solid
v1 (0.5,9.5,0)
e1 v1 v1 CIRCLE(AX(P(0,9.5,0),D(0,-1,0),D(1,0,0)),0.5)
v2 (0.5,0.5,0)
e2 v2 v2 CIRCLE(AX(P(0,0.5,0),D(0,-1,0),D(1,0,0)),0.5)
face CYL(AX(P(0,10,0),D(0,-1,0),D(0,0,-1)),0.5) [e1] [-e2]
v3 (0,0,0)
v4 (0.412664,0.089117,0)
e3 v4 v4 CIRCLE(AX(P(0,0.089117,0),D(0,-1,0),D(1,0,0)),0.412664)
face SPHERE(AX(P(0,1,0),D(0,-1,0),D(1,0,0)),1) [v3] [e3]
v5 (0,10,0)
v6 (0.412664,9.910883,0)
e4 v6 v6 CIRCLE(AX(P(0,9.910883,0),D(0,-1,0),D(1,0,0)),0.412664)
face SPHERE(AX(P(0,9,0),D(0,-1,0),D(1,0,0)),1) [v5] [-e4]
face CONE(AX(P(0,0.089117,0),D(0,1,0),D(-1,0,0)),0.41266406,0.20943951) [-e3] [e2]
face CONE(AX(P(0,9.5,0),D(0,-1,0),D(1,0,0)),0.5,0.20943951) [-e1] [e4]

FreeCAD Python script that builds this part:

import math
import FreeCAD as App
import Part
import Sketcher
from FreeCAD import Vector
Q = App.Units.Quantity

doc = App.newDocument("Part")
body = doc.addObject("PartDesign::Body", "Body")

# Sketch on XZ plane
sketch1 = doc.addObject("Sketcher::SketchObject", "Sketch")
body.addObject(sketch1)
sketch1.AttachmentSupport = (doc.XZ_Plane, [""])
sketch1.MapMode = "FlatFace"
sketch1.addGeometry(Part.Circle(Vector(0, 0, 0), Vector(0, 0, 1), 0.5), False)
sketch1.addConstraint(Sketcher.Constraint("Coincident", 0, 3, -1, 1))
sketch1.addConstraint(Sketcher.Constraint("Diameter", 0, Q("1 mm")))
pad1 = doc.addObject("PartDesign::Pad", "Pad")
body.addObject(pad1)
pad1.Profile = sketch1
pad1.Length = 10
pad1.Reversed = True

# Sketch on XY plane
sketch2 = doc.addObject("Sketcher::SketchObject", "Sketch001")
body.addObject(sketch2)
sketch2.AttachmentSupport = (doc.XY_Plane, [""])
sketch2.MapMode = "FlatFace"
sketch2.addGeometry(Part.LineSegment(Vector(0.5, 9.866025, 0), Vector(0.5, 10.1, 0)), False)
sketch2.addGeometry(Part.LineSegment(Vector(0.5, 10.1, 0), Vector(0, 10.1, 0)), False)
sketch2.addGeometry(Part.LineSegment(Vector(0, 10.1, 0), Vector(0, 10, 0)), False)
sketch2.addGeometry(Part.ArcOfCircle(Part.Circle(Vector(0, 9, 0), Vector(0, 0, 1), 1), math.radians(60), math.radians(90)), False)
sketch2.addGeometry(Part.LineSegment(Vector(0, -0.1, 0), Vector(0.5, -0.1, 0)), False)
sketch2.addGeometry(Part.LineSegment(Vector(0.5, -0.1, 0), Vector(0.5, 0.133975, 0)), False)
sketch2.addGeometry(Part.ArcOfCircle(Part.Circle(Vector(0, 1, 0), Vector(0, 0, 1), 1), math.radians(-90), math.radians(-60)), False)
sketch2.addGeometry(Part.LineSegment(Vector(0, 0, 0), Vector(0, -0.1, 0)), False)
sketch2.addConstraint(Sketcher.Constraint("Coincident", 0, 2, 1, 1))
sketch2.addConstraint(Sketcher.Constraint("Coincident", 1, 2, 2, 1))
sketch2.addConstraint(Sketcher.Constraint("Coincident", 2, 2, 3, 2))
sketch2.addConstraint(Sketcher.Constraint("Coincident", 3, 1, 0, 1))
sketch2.addConstraint(Sketcher.Constraint("Coincident", 4, 2, 5, 1))
sketch2.addConstraint(Sketcher.Constraint("Coincident", 5, 2, 6, 2))
sketch2.addConstraint(Sketcher.Constraint("Coincident", 6, 1, 7, 1))
sketch2.addConstraint(Sketcher.Constraint("Coincident", 7, 2, 4, 1))
sketch2.addConstraint(Sketcher.Constraint("Vertical", 0))
sketch2.addConstraint(Sketcher.Constraint("Horizontal", 1))
sketch2.addConstraint(Sketcher.Constraint("Vertical", 2))
sketch2.addConstraint(Sketcher.Constraint("Horizontal", 4))
sketch2.addConstraint(Sketcher.Constraint("Vertical", 5))
sketch2.addConstraint(Sketcher.Constraint("Vertical", 7))
sketch2.addConstraint(Sketcher.Constraint("Coincident", 6, 1, -1, 1))
sketch2.addConstraint(Sketcher.Constraint("Equal", 3, 6))
sketch2.addConstraint(Sketcher.Constraint("PointOnObject", 3, 3, -2))
sketch2.addConstraint(Sketcher.Constraint("PointOnObject", 6, 3, -2))
sketch2.addConstraint(Sketcher.Constraint("PointOnObject", 1, 2, -2))
sketch2.addConstraint(Sketcher.Constraint("Vertical", 3, 1, 4, 2))
sketch2.addConstraint(Sketcher.Constraint("Equal", 0, 5))
sketch2.addConstraint(Sketcher.Constraint("Radius", 3, Q("1 mm")))
sketch2.addConstraint(Sketcher.Constraint("DistanceX", 1, 2, 1, 1, Q("0.5 mm")))
sketch2.addConstraint(Sketcher.Constraint("DistanceY", 2, 2, 2, 1, Q("0.1 mm")))
sketch2.addConstraint(Sketcher.Constraint("DistanceY", -1, 1, 3, 3, Q("9 mm")))
groove = doc.addObject("PartDesign::Groove", "Groove")
body.addObject(groove)
groove.Profile = sketch2
groove.ReferenceAxis = (sketch2, ["V_Axis"])
groove.Angle = 360

# Sketch on XY plane
sketch3 = doc.addObject("Sketcher::SketchObject", "Sketch002")
body.addObject(sketch3)
sketch3.AttachmentSupport = (doc.XY_Plane, [""])
sketch3.MapMode = "FlatFace"
sketch3.addGeometry(Part.LineSegment(Vector(-0.5, 9.5, 0), Vector(-0.412664, 9.910883, 0)), False)
sketch3.addGeometry(Part.ArcOfCircle(Part.Circle(Vector(0, 9, 0), Vector(0, 0, 1), 1), math.radians(114.372298), math.radians(119.999999)), False)
sketch3.addGeometry(Part.LineSegment(Vector(-0.5, 9.866025, 0), Vector(-0.5, 9.5, 0)), False)
sketch3.addGeometry(Part.LineSegment(Vector(-0.5, 0.5, 0), Vector(-0.5, 0.133975, 0)), False)
sketch3.addGeometry(Part.ArcOfCircle(Part.Circle(Vector(0, 1, 0), Vector(0, 0, 1), 1), math.radians(-119.999999), math.radians(-114.372298)), False)
sketch3.addGeometry(Part.LineSegment(Vector(-0.412664, 0.089117, 0), Vector(-0.5, 0.5, 0)), False)
sketch3.addConstraint(Sketcher.Constraint("Coincident", 0, 2, 1, 1))
sketch3.addConstraint(Sketcher.Constraint("Coincident", 1, 2, 2, 1))
sketch3.addConstraint(Sketcher.Constraint("Coincident", 2, 2, 0, 1))
sketch3.addConstraint(Sketcher.Constraint("Coincident", 3, 2, 4, 1))
sketch3.addConstraint(Sketcher.Constraint("Coincident", 4, 2, 5, 1))
sketch3.addConstraint(Sketcher.Constraint("Coincident", 5, 2, 3, 1))
sketch3.addConstraint(Sketcher.Constraint("Vertical", 2))
sketch3.addConstraint(Sketcher.Constraint("Vertical", 3))
sketch3.addConstraint(Sketcher.Constraint("Equal", 1, 4))
sketch3.addConstraint(Sketcher.Constraint("PointOnObject", 1, 3, -2))
sketch3.addConstraint(Sketcher.Constraint("PointOnObject", 4, 3, -2))
sketch3.addConstraint(Sketcher.Constraint("Vertical", 2, 2, 3, 2))
sketch3.addConstraint(Sketcher.Constraint("Vertical", 0, 2, 4, 2))
sketch3.addConstraint(Sketcher.Constraint("Equal", 2, 3))
sketch3.addConstraint(Sketcher.Constraint("Radius", 1, Q("1 mm")))
sketch3.addConstraint(Sketcher.Constraint("Angle", 0, Q("78 deg")))
sketch3.addConstraint(Sketcher.Constraint("DistanceY", -1, 1, 1, 3, Q("9 mm")))
sketch3.addConstraint(Sketcher.Constraint("DistanceY", -1, 1, 4, 3, Q("1 mm")))
sketch3.addConstraint(Sketcher.Constraint("DistanceY", 5, 2, 2, 2, Q("9 mm")))
sketch3.addConstraint(Sketcher.Constraint("DistanceX", 1, 2, -1, 1, Q("0.5 mm")))
groove2 = doc.addObject("PartDesign::Groove", "Groove001")
body.addObject(groove2)
groove2.Profile = sketch3
groove2.ReferenceAxis = (sketch3, ["V_Axis"])
groove2.Angle = 360

doc.recompute()
